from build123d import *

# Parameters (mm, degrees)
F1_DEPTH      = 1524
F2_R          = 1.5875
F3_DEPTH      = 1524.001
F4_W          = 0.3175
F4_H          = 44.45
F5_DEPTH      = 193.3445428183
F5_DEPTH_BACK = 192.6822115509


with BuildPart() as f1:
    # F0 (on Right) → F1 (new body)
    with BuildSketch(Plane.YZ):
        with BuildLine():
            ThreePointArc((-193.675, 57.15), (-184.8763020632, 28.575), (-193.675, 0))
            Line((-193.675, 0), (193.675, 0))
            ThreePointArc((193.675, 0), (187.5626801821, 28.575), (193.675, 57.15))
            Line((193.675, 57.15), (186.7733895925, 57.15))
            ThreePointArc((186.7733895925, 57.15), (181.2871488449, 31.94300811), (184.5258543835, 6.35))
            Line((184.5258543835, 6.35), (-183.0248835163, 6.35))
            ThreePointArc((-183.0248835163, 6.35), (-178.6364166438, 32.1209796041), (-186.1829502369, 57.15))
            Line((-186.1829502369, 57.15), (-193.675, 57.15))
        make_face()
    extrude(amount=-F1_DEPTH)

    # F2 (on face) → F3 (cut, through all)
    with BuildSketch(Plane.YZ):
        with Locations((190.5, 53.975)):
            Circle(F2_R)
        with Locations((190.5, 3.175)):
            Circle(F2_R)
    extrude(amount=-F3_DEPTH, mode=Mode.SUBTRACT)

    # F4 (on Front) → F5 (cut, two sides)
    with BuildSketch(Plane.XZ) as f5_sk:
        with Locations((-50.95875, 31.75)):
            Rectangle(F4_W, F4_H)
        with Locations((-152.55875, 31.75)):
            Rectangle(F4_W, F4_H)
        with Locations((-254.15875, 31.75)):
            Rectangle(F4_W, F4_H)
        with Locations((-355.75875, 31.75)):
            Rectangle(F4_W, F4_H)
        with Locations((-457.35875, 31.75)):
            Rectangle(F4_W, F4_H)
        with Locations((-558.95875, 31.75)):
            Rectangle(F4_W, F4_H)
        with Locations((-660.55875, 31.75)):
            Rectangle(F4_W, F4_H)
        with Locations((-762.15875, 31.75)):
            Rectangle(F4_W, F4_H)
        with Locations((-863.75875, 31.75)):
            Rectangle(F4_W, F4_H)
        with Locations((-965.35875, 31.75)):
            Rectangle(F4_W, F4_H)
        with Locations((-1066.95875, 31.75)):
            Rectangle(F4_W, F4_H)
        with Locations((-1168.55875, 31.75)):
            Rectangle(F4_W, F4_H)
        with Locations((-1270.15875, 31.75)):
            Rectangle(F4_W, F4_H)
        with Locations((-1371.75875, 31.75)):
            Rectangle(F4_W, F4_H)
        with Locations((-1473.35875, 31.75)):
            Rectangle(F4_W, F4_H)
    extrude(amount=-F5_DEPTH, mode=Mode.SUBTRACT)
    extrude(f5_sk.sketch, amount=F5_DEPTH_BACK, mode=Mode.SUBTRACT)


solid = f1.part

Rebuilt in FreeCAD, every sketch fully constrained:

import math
import FreeCAD as App
import Part
import Sketcher

V = App.Vector
Q = App.Units.Quantity


def add_polygon(sketch, points):
    """Adds a closed chain of lines whose ends are joined by coincident constraints."""
    first, n = sketch.GeometryCount, len(points)
    for a, b in zip(points, points[1:] + points[:1]):
        sketch.addGeometry(Part.LineSegment(App.Vector(*a, 0), App.Vector(*b, 0)), False)
    for i in range(n):
        sketch.addConstraint(Sketcher.Constraint("Coincident", first + i, 2, first + (i + 1) % n, 1))

doc = App.newDocument("Part")
body = doc.addObject("PartDesign::Body", "Body")

sketch1 = body.newObject("Sketcher::SketchObject", "Sketch")
sketch1.AttachmentSupport = (doc.getObject("YZ_Plane"), [""])
sketch1.MapMode = "FlatFace"
sketch1.addGeometry([
    Part.ArcOfCircle(Part.Circle(V(-236, 29, 0), V(0, 0, 1), 51), math.radians(-34), math.radians(34)),
    Part.LineSegment(V(-194, 0, 0), V(194, 0, 0)),
    Part.ArcOfCircle(Part.Circle(V(257, 29, 0), V(0, 0, 1), 70), math.radians(156), math.radians(204)),
    Part.LineSegment(V(194, 57, 0), V(187, 57, 0)),
    Part.ArcOfCircle(Part.Circle(V(257, 29, 0), V(0, 0, 1), 76), math.radians(158), math.radians(197)),
    Part.LineSegment(V(185, 6, 0), V(-183, 6, 0)),
    Part.ArcOfCircle(Part.Circle(V(-236, 29, 0), V(0, 0, 1), 57), math.radians(-23), math.radians(30)),
    Part.LineSegment(V(-186, 57, 0), V(-194, 57, 0)),
], False)
sketch1.addConstraint([
    Sketcher.Constraint("Coincident", 0, 1, 1, 1),
    Sketcher.Constraint("Coincident", 1, 2, 2, 2),
    Sketcher.Constraint("Coincident", 2, 1, 3, 1),
    Sketcher.Constraint("Coincident", 3, 2, 4, 1),
    Sketcher.Constraint("Coincident", 4, 2, 5, 1),
    Sketcher.Constraint("Coincident", 5, 2, 6, 1),
    Sketcher.Constraint("Coincident", 6, 2, 7, 1),
    Sketcher.Constraint("Coincident", 7, 2, 0, 2),
    Sketcher.Constraint("Horizontal", 1),
    Sketcher.Constraint("Horizontal", 3),
    Sketcher.Constraint("Horizontal", 5),
    Sketcher.Constraint("Horizontal", 7),
    Sketcher.Constraint("Coincident", 4, 3, 2, 3),
    Sketcher.Constraint("Coincident", 6, 3, 0, 3),
    Sketcher.Constraint("Symmetric", 0, 1, 1, 2, -1, 1),
    Sketcher.Constraint("Symmetric", 2, 1, 7, 2, -2),
    Sketcher.Constraint("Horizontal", 0, 3, 2, 3),
    Sketcher.Constraint("Radius", 0, Q("2 in")),
    Sketcher.Constraint("Radius", 4, Q("3 in")),
    Sketcher.Constraint("Radius", 2, Q("2.75 in")),
    Sketcher.Constraint("Radius", 6, Q("2.25 in")),
    Sketcher.Constraint("DistanceY", 4, 2, 3, 2, Q("2 in")),
    Sketcher.Constraint("DistanceX", 1, 1, 1, 2, Q("15.25 in")),
    Sketcher.Constraint("DistanceY", -1, 1, 2, 1, Q("2.25 in")),
])
pad1 = body.newObject("PartDesign::Pad", "Pad")
pad1.Profile = sketch1
pad1.Length = Q("60 in")
pad1.Reversed = True

sketch2 = body.newObject("Sketcher::SketchObject", "Sketch001")
sketch2.AttachmentSupport = (doc.getObject("YZ_Plane"), [""])
sketch2.MapMode = "FlatFace"
sketch2.addGeometry([
    Part.Circle(V(190.5, 54, 0), V(0, 0, 1), 1.6),
    Part.Circle(V(190.5, 3.2, 0), V(0, 0, 1), 1.6),
], False)
sketch2.addConstraint([
    Sketcher.Constraint("Equal", 0, 1),
    Sketcher.Constraint("Vertical", 0, 3, 1, 3),
    Sketcher.Constraint("Diameter", 0, Q("0.125 in")),
    Sketcher.Constraint("DistanceY", 1, 3, 0, 3, Q("2 in")),
    Sketcher.Constraint("DistanceX", -1, 1, 0, 3, Q("7.5 in")),
    Sketcher.Constraint("DistanceY", -1, 1, 0, 3, Q("2.125 in")),
])
pocket1 = body.newObject("PartDesign::Pocket", "Pocket")
pocket1.Profile = sketch2
pocket1.Type = "ThroughAll"

sketch3 = body.newObject("Sketcher::SketchObject", "Sketch002")
sketch3.AttachmentSupport = (doc.getObject("XZ_Plane"), [""])
sketch3.MapMode = "FlatFace"
add_polygon(sketch3, [(-51.12, 53.98), (-51.12, 9.53), (-50.8, 9.53), (-50.8, 53.98)])
add_polygon(sketch3, [(-152.72, 53.98), (-152.72, 9.53), (-152.4, 9.53), (-152.4, 53.98)])
add_polygon(sketch3, [(-254.32, 53.98), (-254.32, 9.53), (-254, 9.53), (-254, 53.98)])
add_polygon(sketch3, [(-355.92, 53.98), (-355.92, 9.53), (-355.6, 9.53), (-355.6, 53.98)])
add_polygon(sketch3, [(-457.52, 53.98), (-457.52, 9.53), (-457.2, 9.53), (-457.2, 53.98)])
add_polygon(sketch3, [(-559.12, 53.98), (-559.12, 9.53), (-558.8, 9.53), (-558.8, 53.98)])
add_polygon(sketch3, [(-660.72, 53.98), (-660.72, 9.53), (-660.4, 9.53), (-660.4, 53.98)])
add_polygon(sketch3, [(-762.32, 53.98), (-762.32, 9.53), (-762, 9.53), (-762, 53.98)])
add_polygon(sketch3, [(-863.92, 53.98), (-863.92, 9.53), (-863.6, 9.53), (-863.6, 53.98)])
add_polygon(sketch3, [(-965.52, 53.98), (-965.52, 9.53), (-965.2, 9.53), (-965.2, 53.98)])
add_polygon(sketch3, [(-1067.12, 53.98), (-1067.12, 9.53), (-1066.8, 9.53), (-1066.8, 53.98)])
add_polygon(sketch3, [(-1168.72, 53.98), (-1168.72, 9.53), (-1168.4, 9.53), (-1168.4, 53.98)])
add_polygon(sketch3, [(-1270.32, 53.98), (-1270.32, 9.53), (-1270, 9.53), (-1270, 53.98)])
add_polygon(sketch3, [(-1371.92, 53.98), (-1371.92, 9.53), (-1371.6, 9.53), (-1371.6, 53.98)])
add_polygon(sketch3, [(-1473.52, 53.98), (-1473.52, 9.53), (-1473.2, 9.53), (-1473.2, 53.98)])
sketch3.addConstraint([
    Sketcher.Constraint("Vertical", 0),
    Sketcher.Constraint("Horizontal", 1),
    Sketcher.Constraint("Vertical", 2),
    Sketcher.Constraint("Horizontal", 3),
    Sketcher.Constraint("Vertical", 4),
    Sketcher.Constraint("Horizontal", 5),
    Sketcher.Constraint("Vertical", 6),
    Sketcher.Constraint("Horizontal", 7),
    Sketcher.Constraint("Vertical", 8),
    Sketcher.Constraint("Horizontal", 9),
    Sketcher.Constraint("Vertical", 10),
    Sketcher.Constraint("Horizontal", 11),
    Sketcher.Constraint("Vertical", 12),
    Sketcher.Constraint("Horizontal", 13),
    Sketcher.Constraint("Vertical", 14),
    Sketcher.Constraint("Horizontal", 15),
    Sketcher.Constraint("Vertical", 16),
    Sketcher.Constraint("Horizontal", 17),
    Sketcher.Constraint("Vertical", 18),
    Sketcher.Constraint("Horizontal", 19),
    Sketcher.Constraint("Vertical", 20),
    Sketcher.Constraint("Horizontal", 21),
    Sketcher.Constraint("Vertical", 22),
    Sketcher.Constraint("Horizontal", 23),
    Sketcher.Constraint("Vertical", 24),
    Sketcher.Constraint("Horizontal", 25),
    Sketcher.Constraint("Vertical", 26),
    Sketcher.Constraint("Horizontal", 27),
    Sketcher.Constraint("Vertical", 28),
    Sketcher.Constraint("Horizontal", 29),
    Sketcher.Constraint("Vertical", 30),
    Sketcher.Constraint("Horizontal", 31),
    Sketcher.Constraint("Vertical", 32),
    Sketcher.Constraint("Horizontal", 33),
    Sketcher.Constraint("Vertical", 34),
    Sketcher.Constraint("Horizontal", 35),
    Sketcher.Constraint("Vertical", 36),
    Sketcher.Constraint("Horizontal", 37),
    Sketcher.Constraint("Vertical", 38),
    Sketcher.Constraint("Horizontal", 39),
    Sketcher.Constraint("Vertical", 40),
    Sketcher.Constraint("Horizontal", 41),
    Sketcher.Constraint("Vertical", 42),
    Sketcher.Constraint("Horizontal", 43),
    Sketcher.Constraint("Vertical", 44),
    Sketcher.Constraint("Horizontal", 45),
    Sketcher.Constraint("Vertical", 46),
    Sketcher.Constraint("Horizontal", 47),
    Sketcher.Constraint("Vertical", 48),
    Sketcher.Constraint("Horizontal", 49),
    Sketcher.Constraint("Vertical", 50),
    Sketcher.Constraint("Horizontal", 51),
    Sketcher.Constraint("Vertical", 52),
    Sketcher.Constraint("Horizontal", 53),
    Sketcher.Constraint("Vertical", 54),
    Sketcher.Constraint("Horizontal", 55),
    Sketcher.Constraint("Vertical", 56),
    Sketcher.Constraint("Horizontal", 57),
    Sketcher.Constraint("Vertical", 58),
    Sketcher.Constraint("Horizontal", 59),
    Sketcher.Constraint("Horizontal", 1, 2, 4, 2),
    Sketcher.Constraint("Horizontal", 3, 2, 6, 2),
    Sketcher.Constraint("Horizontal", 5, 2, 8, 2),
    Sketcher.Constraint("Horizontal", 7, 2, 10, 2),
    Sketcher.Constraint("Horizontal", 9, 2, 12, 2),
    Sketcher.Constraint("Horizontal", 11, 2, 14, 2),
    Sketcher.Constraint("Horizontal", 13, 2, 16, 2),
    Sketcher.Constraint("Horizontal", 15, 2, 18, 2),
    Sketcher.Constraint("Horizontal", 17, 2, 20, 2),
    Sketcher.Constraint("Horizontal", 19, 2, 22, 2),
    Sketcher.Constraint("Horizontal", 21, 2, 24, 2),
    Sketcher.Constraint("Horizontal", 23, 2, 26, 2),
    Sketcher.Constraint("Horizontal", 25, 2, 28, 2),
    Sketcher.Constraint("Horizontal", 27, 2, 30, 2),
    Sketcher.Constraint("Horizontal", 29, 2, 32, 2),
    Sketcher.Constraint("Horizontal", 31, 2, 34, 2),
    Sketcher.Constraint("Horizontal", 33, 2, 36, 2),
    Sketcher.Constraint("Horizontal", 35, 2, 38, 2),
    Sketcher.Constraint("Horizontal", 37, 2, 40, 2),
    Sketcher.Constraint("Horizontal", 39, 2, 42, 2),
    Sketcher.Constraint("Horizontal", 41, 2, 44, 2),
    Sketcher.Constraint("Horizontal", 43, 2, 46, 2),
    Sketcher.Constraint("Horizontal", 45, 2, 48, 2),
    Sketcher.Constraint("Horizontal", 47, 2, 50, 2),
    Sketcher.Constraint("Horizontal", 49, 2, 52, 2),
    Sketcher.Constraint("Horizontal", 51, 2, 54, 2),
    Sketcher.Constraint("Horizontal", 53, 2, 56, 2),
    Sketcher.Constraint("Horizontal", 55, 2, 58, 2),
    Sketcher.Constraint("Equal", 3, 5),
    Sketcher.Constraint("Equal", 7, 9),
    Sketcher.Constraint("Equal", 11, 13),
    Sketcher.Constraint("Equal", 15, 17),
    Sketcher.Constraint("Equal", 19, 21),
    Sketcher.Constraint("Equal", 23, 25),
    Sketcher.Constraint("Equal", 27, 29),
    Sketcher.Constraint("Equal", 31, 33),
    Sketcher.Constraint("Equal", 35, 37),
    Sketcher.Constraint("Equal", 39, 41),
    Sketcher.Constraint("Equal", 43, 45),
    Sketcher.Constraint("Equal", 47, 49),
    Sketcher.Constraint("Equal", 51, 53),
    Sketcher.Constraint("Equal", 55, 57),
    Sketcher.Constraint("DistanceX", 1, 2, -1, 1, Q("2 in")),
    Sketcher.Constraint("DistanceX", 5, 2, -1, 1, Q("6 in")),
    Sketcher.Constraint("DistanceX", 9, 2, -1, 1, Q("10 in")),
    Sketcher.Constraint("DistanceX", 13, 2, -1, 1, Q("14 in")),
    Sketcher.Constraint("DistanceX", 17, 2, -1, 1, Q("18 in")),
    Sketcher.Constraint("DistanceX", 21, 2, -1, 1, Q("22 in")),
    Sketcher.Constraint("DistanceX", 25, 2, -1, 1, Q("26 in")),
    Sketcher.Constraint("DistanceX", 29, 2, -1, 1, Q("30 in")),
    Sketcher.Constraint("DistanceX", 33, 2, -1, 1, Q("34 in")),
    Sketcher.Constraint("DistanceX", 37, 2, -1, 1, Q("38 in")),
    Sketcher.Constraint("DistanceX", 41, 2, -1, 1, Q("42 in")),
    Sketcher.Constraint("DistanceX", 45, 2, -1, 1, Q("46 in")),
    Sketcher.Constraint("DistanceX", 49, 2, -1, 1, Q("50 in")),
    Sketcher.Constraint("DistanceX", 53, 2, -1, 1, Q("54 in")),
    Sketcher.Constraint("DistanceX", 57, 2, -1, 1, Q("58 in")),
    Sketcher.Constraint("DistanceY", 0, 2, 0, 1, Q("1.75 in")),
    Sketcher.Constraint("DistanceX", 1, 1, 1, 2, Q("0.0125 in")),
    Sketcher.Constraint("DistanceY", -1, 1, 0, 2, Q("0.375 in")),
])
pocket2 = body.newObject("PartDesign::Pocket", "Pocket001")
pocket2.Profile = sketch3
pocket2.Type = "ThroughAll"
pocket2.Midplane = True

doc.recompute()
